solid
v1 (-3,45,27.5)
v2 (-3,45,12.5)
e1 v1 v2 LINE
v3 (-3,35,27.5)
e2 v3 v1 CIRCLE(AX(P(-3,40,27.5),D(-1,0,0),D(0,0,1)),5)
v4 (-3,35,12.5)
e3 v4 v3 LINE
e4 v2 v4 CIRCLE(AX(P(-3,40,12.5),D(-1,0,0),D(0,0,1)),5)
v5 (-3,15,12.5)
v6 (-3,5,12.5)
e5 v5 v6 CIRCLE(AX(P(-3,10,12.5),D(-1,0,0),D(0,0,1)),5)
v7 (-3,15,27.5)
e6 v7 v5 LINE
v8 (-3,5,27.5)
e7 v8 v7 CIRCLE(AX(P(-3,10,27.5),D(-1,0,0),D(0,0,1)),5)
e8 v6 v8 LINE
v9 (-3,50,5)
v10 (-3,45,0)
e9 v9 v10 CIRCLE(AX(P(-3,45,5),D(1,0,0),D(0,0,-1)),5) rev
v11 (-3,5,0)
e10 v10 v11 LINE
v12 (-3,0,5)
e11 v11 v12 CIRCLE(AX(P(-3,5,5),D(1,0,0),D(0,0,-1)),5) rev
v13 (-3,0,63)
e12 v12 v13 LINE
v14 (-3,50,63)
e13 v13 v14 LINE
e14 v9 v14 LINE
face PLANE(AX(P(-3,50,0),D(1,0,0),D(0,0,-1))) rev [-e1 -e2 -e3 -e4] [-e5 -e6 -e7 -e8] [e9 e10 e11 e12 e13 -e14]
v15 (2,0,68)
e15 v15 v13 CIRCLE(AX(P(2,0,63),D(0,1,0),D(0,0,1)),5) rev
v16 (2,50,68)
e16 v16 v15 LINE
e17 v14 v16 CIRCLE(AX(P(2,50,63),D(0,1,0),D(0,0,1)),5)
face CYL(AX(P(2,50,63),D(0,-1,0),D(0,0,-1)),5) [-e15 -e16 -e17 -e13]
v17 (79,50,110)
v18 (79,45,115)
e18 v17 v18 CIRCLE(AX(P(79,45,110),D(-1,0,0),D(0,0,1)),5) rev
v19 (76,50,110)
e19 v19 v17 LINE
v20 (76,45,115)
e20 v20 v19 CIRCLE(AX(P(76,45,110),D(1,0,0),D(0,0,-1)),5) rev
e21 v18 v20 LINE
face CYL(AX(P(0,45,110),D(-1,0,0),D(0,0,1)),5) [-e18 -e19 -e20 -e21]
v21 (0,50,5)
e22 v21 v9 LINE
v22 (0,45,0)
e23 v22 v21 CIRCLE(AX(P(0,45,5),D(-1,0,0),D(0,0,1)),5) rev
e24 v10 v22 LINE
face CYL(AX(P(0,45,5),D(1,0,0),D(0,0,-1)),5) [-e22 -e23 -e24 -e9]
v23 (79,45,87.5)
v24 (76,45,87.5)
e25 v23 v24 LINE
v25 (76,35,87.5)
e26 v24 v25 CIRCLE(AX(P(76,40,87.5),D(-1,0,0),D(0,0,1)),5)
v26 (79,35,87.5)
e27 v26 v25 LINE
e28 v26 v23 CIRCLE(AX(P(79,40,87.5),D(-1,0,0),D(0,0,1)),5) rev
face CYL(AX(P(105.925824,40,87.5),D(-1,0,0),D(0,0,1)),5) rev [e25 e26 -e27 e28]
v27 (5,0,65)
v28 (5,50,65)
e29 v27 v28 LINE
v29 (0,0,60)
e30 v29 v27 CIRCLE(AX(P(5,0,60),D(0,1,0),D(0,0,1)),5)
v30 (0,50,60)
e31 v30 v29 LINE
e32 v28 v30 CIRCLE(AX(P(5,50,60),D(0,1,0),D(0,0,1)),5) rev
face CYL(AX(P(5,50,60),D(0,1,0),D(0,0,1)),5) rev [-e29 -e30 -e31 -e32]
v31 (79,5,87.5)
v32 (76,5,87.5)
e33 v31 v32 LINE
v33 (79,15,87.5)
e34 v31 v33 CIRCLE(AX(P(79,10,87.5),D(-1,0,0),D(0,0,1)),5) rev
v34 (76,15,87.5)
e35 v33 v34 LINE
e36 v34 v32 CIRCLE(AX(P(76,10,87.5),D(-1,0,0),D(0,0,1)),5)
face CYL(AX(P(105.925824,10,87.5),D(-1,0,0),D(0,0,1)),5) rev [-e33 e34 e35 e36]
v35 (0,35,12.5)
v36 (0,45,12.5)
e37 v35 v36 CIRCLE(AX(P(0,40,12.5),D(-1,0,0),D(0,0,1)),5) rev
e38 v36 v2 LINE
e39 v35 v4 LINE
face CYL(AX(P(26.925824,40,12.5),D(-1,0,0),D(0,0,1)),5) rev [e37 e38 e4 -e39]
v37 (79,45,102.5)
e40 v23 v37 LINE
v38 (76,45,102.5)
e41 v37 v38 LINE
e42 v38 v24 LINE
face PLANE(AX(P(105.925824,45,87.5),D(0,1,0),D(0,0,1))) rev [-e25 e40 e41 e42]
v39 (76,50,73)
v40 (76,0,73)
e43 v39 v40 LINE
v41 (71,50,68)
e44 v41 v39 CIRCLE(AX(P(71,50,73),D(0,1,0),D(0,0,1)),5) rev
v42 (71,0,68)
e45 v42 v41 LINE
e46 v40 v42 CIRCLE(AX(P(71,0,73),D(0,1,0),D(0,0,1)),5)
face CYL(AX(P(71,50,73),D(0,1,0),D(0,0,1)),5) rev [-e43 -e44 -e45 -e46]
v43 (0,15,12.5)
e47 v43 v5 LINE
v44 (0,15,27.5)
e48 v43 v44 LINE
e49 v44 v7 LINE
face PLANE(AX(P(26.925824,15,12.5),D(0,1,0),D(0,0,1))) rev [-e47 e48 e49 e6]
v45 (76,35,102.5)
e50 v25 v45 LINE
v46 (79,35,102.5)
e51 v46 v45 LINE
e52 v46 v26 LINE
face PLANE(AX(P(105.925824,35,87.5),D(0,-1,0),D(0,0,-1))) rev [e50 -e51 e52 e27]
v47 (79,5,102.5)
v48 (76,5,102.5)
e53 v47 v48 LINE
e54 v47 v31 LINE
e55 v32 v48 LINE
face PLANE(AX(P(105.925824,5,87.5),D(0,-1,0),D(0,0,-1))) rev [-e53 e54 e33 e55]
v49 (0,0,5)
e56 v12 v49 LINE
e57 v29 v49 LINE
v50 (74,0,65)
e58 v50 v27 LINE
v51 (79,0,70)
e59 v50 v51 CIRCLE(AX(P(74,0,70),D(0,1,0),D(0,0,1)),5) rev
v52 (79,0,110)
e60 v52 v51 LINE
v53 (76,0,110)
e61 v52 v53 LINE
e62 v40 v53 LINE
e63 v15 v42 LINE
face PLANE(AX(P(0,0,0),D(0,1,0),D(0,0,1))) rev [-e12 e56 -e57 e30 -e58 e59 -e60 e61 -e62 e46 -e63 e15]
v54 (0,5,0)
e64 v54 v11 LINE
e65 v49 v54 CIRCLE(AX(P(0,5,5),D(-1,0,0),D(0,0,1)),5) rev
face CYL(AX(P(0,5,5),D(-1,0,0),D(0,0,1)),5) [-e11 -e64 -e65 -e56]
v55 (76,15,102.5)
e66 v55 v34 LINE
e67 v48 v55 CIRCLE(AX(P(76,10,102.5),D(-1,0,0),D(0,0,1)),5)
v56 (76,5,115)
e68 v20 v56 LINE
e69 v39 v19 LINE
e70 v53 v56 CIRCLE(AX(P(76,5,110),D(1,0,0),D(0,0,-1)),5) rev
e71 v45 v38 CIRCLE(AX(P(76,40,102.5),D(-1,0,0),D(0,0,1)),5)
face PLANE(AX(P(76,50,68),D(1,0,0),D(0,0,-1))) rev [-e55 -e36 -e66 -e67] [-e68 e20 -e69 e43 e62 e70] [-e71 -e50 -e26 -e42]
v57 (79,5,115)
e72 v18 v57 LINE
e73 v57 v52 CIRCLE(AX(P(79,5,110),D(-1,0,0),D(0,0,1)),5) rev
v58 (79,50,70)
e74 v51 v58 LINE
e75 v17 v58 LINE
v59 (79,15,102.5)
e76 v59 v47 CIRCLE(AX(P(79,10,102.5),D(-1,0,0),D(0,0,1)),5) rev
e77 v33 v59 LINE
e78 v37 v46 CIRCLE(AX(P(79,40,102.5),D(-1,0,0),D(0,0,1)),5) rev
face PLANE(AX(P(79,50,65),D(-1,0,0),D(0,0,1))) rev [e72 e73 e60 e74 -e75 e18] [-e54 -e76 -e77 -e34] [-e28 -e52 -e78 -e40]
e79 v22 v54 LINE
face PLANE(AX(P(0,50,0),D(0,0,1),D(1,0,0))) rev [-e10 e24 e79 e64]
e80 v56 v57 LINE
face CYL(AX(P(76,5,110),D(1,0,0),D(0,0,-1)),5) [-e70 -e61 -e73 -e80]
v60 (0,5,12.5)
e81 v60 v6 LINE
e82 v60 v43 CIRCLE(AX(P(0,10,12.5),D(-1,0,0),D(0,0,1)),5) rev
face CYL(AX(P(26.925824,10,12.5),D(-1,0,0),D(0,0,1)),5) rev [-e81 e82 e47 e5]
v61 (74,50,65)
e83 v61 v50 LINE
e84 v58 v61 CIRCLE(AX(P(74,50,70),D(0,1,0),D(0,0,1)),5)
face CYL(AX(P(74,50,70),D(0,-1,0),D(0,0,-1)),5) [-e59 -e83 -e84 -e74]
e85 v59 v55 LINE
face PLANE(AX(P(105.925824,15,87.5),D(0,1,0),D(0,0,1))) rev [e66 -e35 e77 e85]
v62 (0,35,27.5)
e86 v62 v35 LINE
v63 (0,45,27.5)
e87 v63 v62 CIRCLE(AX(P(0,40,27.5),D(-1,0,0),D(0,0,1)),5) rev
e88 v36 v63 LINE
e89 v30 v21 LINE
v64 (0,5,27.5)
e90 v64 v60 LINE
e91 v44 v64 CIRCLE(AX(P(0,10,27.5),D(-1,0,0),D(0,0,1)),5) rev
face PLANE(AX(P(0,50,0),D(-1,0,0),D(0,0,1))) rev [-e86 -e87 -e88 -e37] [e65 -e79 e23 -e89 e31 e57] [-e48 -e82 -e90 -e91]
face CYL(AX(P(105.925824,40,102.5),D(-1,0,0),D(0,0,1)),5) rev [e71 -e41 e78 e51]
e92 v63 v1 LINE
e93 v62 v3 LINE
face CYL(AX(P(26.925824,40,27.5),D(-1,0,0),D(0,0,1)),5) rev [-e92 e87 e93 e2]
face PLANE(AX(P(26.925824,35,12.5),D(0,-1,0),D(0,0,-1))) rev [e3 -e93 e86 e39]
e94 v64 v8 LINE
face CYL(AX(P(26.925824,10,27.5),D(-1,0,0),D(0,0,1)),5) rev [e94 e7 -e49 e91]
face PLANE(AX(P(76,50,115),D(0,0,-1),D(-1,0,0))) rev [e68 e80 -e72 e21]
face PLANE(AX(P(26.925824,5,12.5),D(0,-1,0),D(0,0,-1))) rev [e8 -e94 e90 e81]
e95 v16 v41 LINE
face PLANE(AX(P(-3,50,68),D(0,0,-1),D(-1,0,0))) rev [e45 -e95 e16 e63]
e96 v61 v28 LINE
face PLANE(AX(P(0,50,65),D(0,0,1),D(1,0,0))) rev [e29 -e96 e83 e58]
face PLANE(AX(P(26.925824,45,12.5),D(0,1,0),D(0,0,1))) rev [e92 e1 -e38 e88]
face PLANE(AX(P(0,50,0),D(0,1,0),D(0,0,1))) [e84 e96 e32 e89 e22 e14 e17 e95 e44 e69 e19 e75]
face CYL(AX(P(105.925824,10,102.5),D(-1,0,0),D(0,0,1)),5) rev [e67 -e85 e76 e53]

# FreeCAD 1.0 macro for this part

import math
import FreeCAD as App
import Part
import Sketcher


def edges_at(feature, points):
    """Names of the edges that pass closest to the given points."""
    edges = feature.Shape.Edges
    near = lambda p: min(range(len(edges)), key=lambda i: edges[i].distToShape(Part.Vertex(*p))[0])
    return sorted({f"Edge{near(p) + 1}" for p in points})

doc = App.newDocument("Part")
body = doc.addObject("PartDesign::Body", "Body")

# Sketch on XZ plane
sketch1 = doc.addObject("Sketcher::SketchObject", "Sketch")
body.addObject(sketch1)
sketch1.AttachmentSupport = (doc.XZ_Plane, [""])
sketch1.MapMode = "FlatFace"
sketch1.addGeometry(Part.LineSegment(App.Vector(0, 65, 0), App.Vector(0, 0, 0)), False)
sketch1.addGeometry(Part.LineSegment(App.Vector(0, 0, 0), App.Vector(-3, 0, 0)), False)
sketch1.addGeometry(Part.LineSegment(App.Vector(-3, 0, 0), App.Vector(-3, 68, 0)), False)
sketch1.addGeometry(Part.LineSegment(App.Vector(-3, 68, 0), App.Vector(76, 68, 0)), False)
sketch1.addGeometry(Part.LineSegment(App.Vector(76, 68, 0), App.Vector(76, 115, 0)), False)
sketch1.addGeometry(Part.LineSegment(App.Vector(76, 115, 0), App.Vector(79, 115, 0)), False)
sketch1.addGeometry(Part.LineSegment(App.Vector(79, 115, 0), App.Vector(79, 65, 0)), False)
sketch1.addGeometry(Part.LineSegment(App.Vector(79, 65, 0), App.Vector(0, 65, 0)), False)
sketch1.addConstraint(Sketcher.Constraint("Coincident", 0, 2, 1, 1))
sketch1.addConstraint(Sketcher.Constraint("Coincident", 1, 2, 2, 1))
sketch1.addConstraint(Sketcher.Constraint("Coincident", 2, 2, 3, 1))
sketch1.addConstraint(Sketcher.Constraint("Coincident", 3, 2, 4, 1))
sketch1.addConstraint(Sketcher.Constraint("Coincident", 4, 2, 5, 1))
sketch1.addConstraint(Sketcher.Constraint("Coincident", 5, 2, 6, 1))
sketch1.addConstraint(Sketcher.Constraint("Coincident", 6, 2, 7, 1))
sketch1.addConstraint(Sketcher.Constraint("Coincident", 7, 2, 0, 1))
sketch1.addConstraint(Sketcher.Constraint("Vertical", 0))
sketch1.addConstraint(Sketcher.Constraint("Horizontal", 1))
sketch1.addConstraint(Sketcher.Constraint("Vertical", 2))
sketch1.addConstraint(Sketcher.Constraint("Horizontal", 3))
sketch1.addConstraint(Sketcher.Constraint("Vertical", 4))
sketch1.addConstraint(Sketcher.Constraint("Horizontal", 5))
sketch1.addConstraint(Sketcher.Constraint("Vertical", 6))
sketch1.addConstraint(Sketcher.Constraint("Horizontal", 7))
sketch1.addConstraint(Sketcher.Constraint("Coincident", 0, 2, -1, 1))
sketch1.addConstraint(Sketcher.Constraint("Equal", 1, 5))
sketch1.addConstraint(Sketcher.Constraint("DistanceX", 1, 2, 1, 1, 3.0))
sketch1.addConstraint(Sketcher.Constraint("DistanceX", 3, 1, 3, 2, 79.0))
sketch1.addConstraint(Sketcher.Constraint("DistanceY", 0, 2, 0, 1, 65.0))
sketch1.addConstraint(Sketcher.Constraint("DistanceY", 2, 1, 2, 2, 68.0))
sketch1.addConstraint(Sketcher.Constraint("DistanceY", 4, 1, 4, 2, 47.0))
pad1 = doc.addObject("PartDesign::Pad", "Pad")
body.addObject(pad1)
pad1.Profile = sketch1
pad1.Length = 50
pad1.Reversed = True
doc.recompute()

fillet = doc.addObject("PartDesign::Fillet", "Fillet")
body.addObject(fillet)
fillet.Base = (pad1, edges_at(pad1, [
    (0, 25, 65),
    (79, 25, 65),
    (76, 25, 68),
    (-3, 25, 68),
]))
fillet.Radius = 5

# Sketch on YZ plane
sketch2 = doc.addObject("Sketcher::SketchObject", "Sketch001")
body.addObject(sketch2)
sketch2.AttachmentSupport = (doc.YZ_Plane, [""])
sketch2.MapMode = "FlatFace"
sketch2.AttachmentOffset = App.Placement(App.Vector(0, 0, 76), App.Rotation())
sketch2.addGeometry(Part.LineSegment(App.Vector(45, 102, 0), App.Vector(45, 88, 0)), False)
sketch2.addGeometry(Part.ArcOfCircle(Part.Circle(App.Vector(40, 88, 0), App.Vector(0, 0, 1), 5), math.radians(180), math.radians(360)), False)
sketch2.addGeometry(Part.LineSegment(App.Vector(35, 88, 0), App.Vector(35, 102, 0)), False)
sketch2.addGeometry(Part.ArcOfCircle(Part.Circle(App.Vector(40, 102, 0), App.Vector(0, 0, 1), 5), math.radians(0), math.radians(180)), False)
sketch2.addGeometry(Part.LineSegment(App.Vector(15, 102, 0), App.Vector(15, 88, 0)), False)
sketch2.addGeometry(Part.ArcOfCircle(Part.Circle(App.Vector(10, 88, 0), App.Vector(0, 0, 1), 5), math.radians(180), math.radians(360)), False)
sketch2.addGeometry(Part.LineSegment(App.Vector(5, 88, 0), App.Vector(5, 102, 0)), False)
sketch2.addGeometry(Part.ArcOfCircle(Part.Circle(App.Vector(10, 102, 0), App.Vector(0, 0, 1), 5), math.radians(0), math.radians(180)), False)
sketch2.addConstraint(Sketcher.Constraint("Tangent", 0, 2, 1, 2))
sketch2.addConstraint(Sketcher.Constraint("Tangent", 1, 1, 2, 1))
sketch2.addConstraint(Sketcher.Constraint("Tangent", 2, 2, 3, 2))
sketch2.addConstraint(Sketcher.Constraint("Tangent", 3, 1, 0, 1))
sketch2.addConstraint(Sketcher.Constraint("Tangent", 4, 2, 5, 2))
sketch2.addConstraint(Sketcher.Constraint("Tangent", 5, 1, 6, 1))
sketch2.addConstraint(Sketcher.Constraint("Tangent", 6, 2, 7, 2))
sketch2.addConstraint(Sketcher.Constraint("Tangent", 7, 1, 4, 1))
sketch2.addConstraint(Sketcher.Constraint("Vertical", 0))
sketch2.addConstraint(Sketcher.Constraint("Vertical", 2))
sketch2.addConstraint(Sketcher.Constraint("Vertical", 4))
sketch2.addConstraint(Sketcher.Constraint("Vertical", 6))
sketch2.addConstraint(Sketcher.Constraint("Equal", 3, 5))
sketch2.addConstraint(Sketcher.Constraint("Horizontal", 1, 3, 5, 3))
sketch2.addConstraint(Sketcher.Constraint("Horizontal", 3, 3, 7, 3))
sketch2.addConstraint(Sketcher.Constraint("Radius", 1, 5.0))
sketch2.addConstraint(Sketcher.Constraint("DistanceY", 0, 2, 0, 1, 15.0))
sketch2.addConstraint(Sketcher.Constraint("DistanceX", -1, 1, 1, 3, 40.0))
sketch2.addConstraint(Sketcher.Constraint("DistanceX", -1, 1, 5, 3, 10.0))
sketch2.addConstraint(Sketcher.Constraint("DistanceY", -1, 1, 1, 3, 87.5))
pocket1 = doc.addObject("PartDesign::Pocket", "Pocket")
body.addObject(pocket1)
pocket1.Profile = sketch2
pocket1.Length = 3
pocket1.Reversed = True

# Sketch on YZ plane
sketch3 = doc.addObject("Sketcher::SketchObject", "Sketch002")
body.addObject(sketch3)
sketch3.AttachmentSupport = (doc.YZ_Plane, [""])
sketch3.MapMode = "FlatFace"
sketch3.AttachmentOffset = App.Placement(App.Vector(0, 0, -3), App.Rotation())
sketch3.addGeometry(Part.LineSegment(App.Vector(45, 28, 0), App.Vector(45, 12, 0)), False)
sketch3.addGeometry(Part.ArcOfCircle(Part.Circle(App.Vector(40, 12, 0), App.Vector(0, 0, 1), 5), math.radians(180), math.radians(360)), False)
sketch3.addGeometry(Part.LineSegment(App.Vector(35, 12, 0), App.Vector(35, 28, 0)), False)
sketch3.addGeometry(Part.ArcOfCircle(Part.Circle(App.Vector(40, 28, 0), App.Vector(0, 0, 1), 5), math.radians(0), math.radians(180)), False)
sketch3.addGeometry(Part.LineSegment(App.Vector(15, 28, 0), App.Vector(15, 12, 0)), False)
sketch3.addGeometry(Part.ArcOfCircle(Part.Circle(App.Vector(10, 12, 0), App.Vector(0, 0, 1), 5), math.radians(180), math.radians(360)), False)
sketch3.addGeometry(Part.LineSegment(App.Vector(5, 12, 0), App.Vector(5, 28, 0)), False)
sketch3.addGeometry(Part.ArcOfCircle(Part.Circle(App.Vector(10, 28, 0), App.Vector(0, 0, 1), 5), math.radians(0), math.radians(180)), False)
sketch3.addConstraint(Sketcher.Constraint("Tangent", 0, 2, 1, 2))
sketch3.addConstraint(Sketcher.Constraint("Tangent", 1, 1, 2, 1))
sketch3.addConstraint(Sketcher.Constraint("Tangent", 2, 2, 3, 2))
sketch3.addConstraint(Sketcher.Constraint("Tangent", 3, 1, 0, 1))
sketch3.addConstraint(Sketcher.Constraint("Tangent", 4, 2, 5, 2))
sketch3.addConstraint(Sketcher.Constraint("Tangent", 5, 1, 6, 1))
sketch3.addConstraint(Sketcher.Constraint("Tangent", 6, 2, 7, 2))
sketch3.addConstraint(Sketcher.Constraint("Tangent", 7, 1, 4, 1))
sketch3.addConstraint(Sketcher.Constraint("Vertical", 0))
sketch3.addConstraint(Sketcher.Constraint("Vertical", 2))
sketch3.addConstraint(Sketcher.Constraint("Vertical", 4))
sketch3.addConstraint(Sketcher.Constraint("Vertical", 6))
sketch3.addConstraint(Sketcher.Constraint("Equal", 3, 5))
sketch3.addConstraint(Sketcher.Constraint("Horizontal", 1, 3, 5, 3))
sketch3.addConstraint(Sketcher.Constraint("Horizontal", 3, 3, 7, 3))
sketch3.addConstraint(Sketcher.Constraint("Radius", 1, 5.0))
sketch3.addConstraint(Sketcher.Constraint("DistanceY", 0, 2, 0, 1, 15.0))
sketch3.addConstraint(Sketcher.Constraint("DistanceX", -1, 1, 1, 3, 40.0))
sketch3.addConstraint(Sketcher.Constraint("DistanceX", -1, 1, 5, 3, 10.0))
sketch3.addConstraint(Sketcher.Constraint("DistanceY", -1, 1, 1, 3, 12.5))
pocket2 = doc.addObject("PartDesign::Pocket", "Pocket001")
body.addObject(pocket2)
pocket2.Profile = sketch3
pocket2.Length = 3
pocket2.Reversed = True
doc.recompute()

fillet2 = doc.addObject("PartDesign::Fillet", "Fillet001")
body.addObject(fillet2)
fillet2.Base = (pocket2, edges_at(pocket2, [
    (-1.5, 0, 0),
    (77.5, 50, 115),
    (-1.5, 50, 0),
    (77.5, 0, 115),
]))
fillet2.Radius = 5

doc.recompute()
